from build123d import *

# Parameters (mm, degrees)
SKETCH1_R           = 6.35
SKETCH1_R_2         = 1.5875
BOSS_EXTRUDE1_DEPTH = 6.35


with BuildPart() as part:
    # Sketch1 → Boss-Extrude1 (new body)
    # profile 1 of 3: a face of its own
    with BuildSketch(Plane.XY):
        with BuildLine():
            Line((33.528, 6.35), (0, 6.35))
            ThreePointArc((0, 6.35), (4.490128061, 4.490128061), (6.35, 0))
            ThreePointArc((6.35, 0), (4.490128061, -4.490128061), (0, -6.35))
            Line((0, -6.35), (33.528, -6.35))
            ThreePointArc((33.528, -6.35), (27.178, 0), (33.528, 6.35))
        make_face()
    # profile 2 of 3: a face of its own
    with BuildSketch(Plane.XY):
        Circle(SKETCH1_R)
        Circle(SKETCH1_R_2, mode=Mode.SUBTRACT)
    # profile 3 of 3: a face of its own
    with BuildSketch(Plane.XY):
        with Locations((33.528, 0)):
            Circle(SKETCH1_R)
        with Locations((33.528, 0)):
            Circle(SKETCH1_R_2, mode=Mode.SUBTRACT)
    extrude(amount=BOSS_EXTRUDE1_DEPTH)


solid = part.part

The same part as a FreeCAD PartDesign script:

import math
import FreeCAD as App
import Part
import Sketcher
Q = App.Units.Quantity

doc = App.newDocument("Part")
body = doc.addObject("PartDesign::Body", "Body")

# Sketch on XY plane
sketch1 = doc.addObject("Sketcher::SketchObject", "Sketch")
body.addObject(sketch1)
sketch1.AttachmentSupport = (doc.XY_Plane, [""])
sketch1.MapMode = "FlatFace"
sketch1.addGeometry([
    Part.LineSegment(App.Vector(33.528, 6.35, 0), App.Vector(0, 6.35, 0)),  # 0
    Part.ArcOfCircle(Part.Circle(App.Vector(0, 0, 0), App.Vector(0, 0, 1), 6.35), math.radians(90), math.radians(270)),  # 1
    Part.LineSegment(App.Vector(0, -6.35, 0), App.Vector(33.528, -6.35, 0)),  # 2
    Part.ArcOfCircle(Part.Circle(App.Vector(33.528, 0, 0), App.Vector(0, 0, 1), 6.35), math.radians(-90), math.radians(90)),  # 3
    Part.Circle(App.Vector(0, 0, 0), App.Vector(0, 0, 1), 1.5875),  # 4
    Part.Circle(App.Vector(33.528, 0, 0), App.Vector(0, 0, 1), 1.5875),  # 5
], False)
sketch1.addConstraint([
    Sketcher.Constraint("Tangent", 0, 2, 1, 1),
    Sketcher.Constraint("Tangent", 1, 2, 2, 1),
    Sketcher.Constraint("Tangent", 2, 2, 3, 1),
    Sketcher.Constraint("Tangent", 3, 2, 0, 1),
    Sketcher.Constraint("Horizontal", 0),
    Sketcher.Constraint("Horizontal", 2),
    Sketcher.Constraint("Coincident", 1, 3, -1, 1),
    Sketcher.Constraint("Coincident", 4, 3, -1, 1),
    Sketcher.Constraint("Coincident", 5, 3, 3, 3),
    Sketcher.Constraint("Equal", 4, 5),
    Sketcher.Constraint("Radius", 1, Q("0.25 in")),
    Sketcher.Constraint("Diameter", 4, Q("0.125 in")),
    Sketcher.Constraint("DistanceX", 0, 2, 0, 1, Q("1.32 in")),
])
pad1 = doc.addObject("PartDesign::Pad", "Pad")
body.addObject(pad1)
pad1.Profile = sketch1
pad1.Length = Q("0.25 in")

doc.recompute()
